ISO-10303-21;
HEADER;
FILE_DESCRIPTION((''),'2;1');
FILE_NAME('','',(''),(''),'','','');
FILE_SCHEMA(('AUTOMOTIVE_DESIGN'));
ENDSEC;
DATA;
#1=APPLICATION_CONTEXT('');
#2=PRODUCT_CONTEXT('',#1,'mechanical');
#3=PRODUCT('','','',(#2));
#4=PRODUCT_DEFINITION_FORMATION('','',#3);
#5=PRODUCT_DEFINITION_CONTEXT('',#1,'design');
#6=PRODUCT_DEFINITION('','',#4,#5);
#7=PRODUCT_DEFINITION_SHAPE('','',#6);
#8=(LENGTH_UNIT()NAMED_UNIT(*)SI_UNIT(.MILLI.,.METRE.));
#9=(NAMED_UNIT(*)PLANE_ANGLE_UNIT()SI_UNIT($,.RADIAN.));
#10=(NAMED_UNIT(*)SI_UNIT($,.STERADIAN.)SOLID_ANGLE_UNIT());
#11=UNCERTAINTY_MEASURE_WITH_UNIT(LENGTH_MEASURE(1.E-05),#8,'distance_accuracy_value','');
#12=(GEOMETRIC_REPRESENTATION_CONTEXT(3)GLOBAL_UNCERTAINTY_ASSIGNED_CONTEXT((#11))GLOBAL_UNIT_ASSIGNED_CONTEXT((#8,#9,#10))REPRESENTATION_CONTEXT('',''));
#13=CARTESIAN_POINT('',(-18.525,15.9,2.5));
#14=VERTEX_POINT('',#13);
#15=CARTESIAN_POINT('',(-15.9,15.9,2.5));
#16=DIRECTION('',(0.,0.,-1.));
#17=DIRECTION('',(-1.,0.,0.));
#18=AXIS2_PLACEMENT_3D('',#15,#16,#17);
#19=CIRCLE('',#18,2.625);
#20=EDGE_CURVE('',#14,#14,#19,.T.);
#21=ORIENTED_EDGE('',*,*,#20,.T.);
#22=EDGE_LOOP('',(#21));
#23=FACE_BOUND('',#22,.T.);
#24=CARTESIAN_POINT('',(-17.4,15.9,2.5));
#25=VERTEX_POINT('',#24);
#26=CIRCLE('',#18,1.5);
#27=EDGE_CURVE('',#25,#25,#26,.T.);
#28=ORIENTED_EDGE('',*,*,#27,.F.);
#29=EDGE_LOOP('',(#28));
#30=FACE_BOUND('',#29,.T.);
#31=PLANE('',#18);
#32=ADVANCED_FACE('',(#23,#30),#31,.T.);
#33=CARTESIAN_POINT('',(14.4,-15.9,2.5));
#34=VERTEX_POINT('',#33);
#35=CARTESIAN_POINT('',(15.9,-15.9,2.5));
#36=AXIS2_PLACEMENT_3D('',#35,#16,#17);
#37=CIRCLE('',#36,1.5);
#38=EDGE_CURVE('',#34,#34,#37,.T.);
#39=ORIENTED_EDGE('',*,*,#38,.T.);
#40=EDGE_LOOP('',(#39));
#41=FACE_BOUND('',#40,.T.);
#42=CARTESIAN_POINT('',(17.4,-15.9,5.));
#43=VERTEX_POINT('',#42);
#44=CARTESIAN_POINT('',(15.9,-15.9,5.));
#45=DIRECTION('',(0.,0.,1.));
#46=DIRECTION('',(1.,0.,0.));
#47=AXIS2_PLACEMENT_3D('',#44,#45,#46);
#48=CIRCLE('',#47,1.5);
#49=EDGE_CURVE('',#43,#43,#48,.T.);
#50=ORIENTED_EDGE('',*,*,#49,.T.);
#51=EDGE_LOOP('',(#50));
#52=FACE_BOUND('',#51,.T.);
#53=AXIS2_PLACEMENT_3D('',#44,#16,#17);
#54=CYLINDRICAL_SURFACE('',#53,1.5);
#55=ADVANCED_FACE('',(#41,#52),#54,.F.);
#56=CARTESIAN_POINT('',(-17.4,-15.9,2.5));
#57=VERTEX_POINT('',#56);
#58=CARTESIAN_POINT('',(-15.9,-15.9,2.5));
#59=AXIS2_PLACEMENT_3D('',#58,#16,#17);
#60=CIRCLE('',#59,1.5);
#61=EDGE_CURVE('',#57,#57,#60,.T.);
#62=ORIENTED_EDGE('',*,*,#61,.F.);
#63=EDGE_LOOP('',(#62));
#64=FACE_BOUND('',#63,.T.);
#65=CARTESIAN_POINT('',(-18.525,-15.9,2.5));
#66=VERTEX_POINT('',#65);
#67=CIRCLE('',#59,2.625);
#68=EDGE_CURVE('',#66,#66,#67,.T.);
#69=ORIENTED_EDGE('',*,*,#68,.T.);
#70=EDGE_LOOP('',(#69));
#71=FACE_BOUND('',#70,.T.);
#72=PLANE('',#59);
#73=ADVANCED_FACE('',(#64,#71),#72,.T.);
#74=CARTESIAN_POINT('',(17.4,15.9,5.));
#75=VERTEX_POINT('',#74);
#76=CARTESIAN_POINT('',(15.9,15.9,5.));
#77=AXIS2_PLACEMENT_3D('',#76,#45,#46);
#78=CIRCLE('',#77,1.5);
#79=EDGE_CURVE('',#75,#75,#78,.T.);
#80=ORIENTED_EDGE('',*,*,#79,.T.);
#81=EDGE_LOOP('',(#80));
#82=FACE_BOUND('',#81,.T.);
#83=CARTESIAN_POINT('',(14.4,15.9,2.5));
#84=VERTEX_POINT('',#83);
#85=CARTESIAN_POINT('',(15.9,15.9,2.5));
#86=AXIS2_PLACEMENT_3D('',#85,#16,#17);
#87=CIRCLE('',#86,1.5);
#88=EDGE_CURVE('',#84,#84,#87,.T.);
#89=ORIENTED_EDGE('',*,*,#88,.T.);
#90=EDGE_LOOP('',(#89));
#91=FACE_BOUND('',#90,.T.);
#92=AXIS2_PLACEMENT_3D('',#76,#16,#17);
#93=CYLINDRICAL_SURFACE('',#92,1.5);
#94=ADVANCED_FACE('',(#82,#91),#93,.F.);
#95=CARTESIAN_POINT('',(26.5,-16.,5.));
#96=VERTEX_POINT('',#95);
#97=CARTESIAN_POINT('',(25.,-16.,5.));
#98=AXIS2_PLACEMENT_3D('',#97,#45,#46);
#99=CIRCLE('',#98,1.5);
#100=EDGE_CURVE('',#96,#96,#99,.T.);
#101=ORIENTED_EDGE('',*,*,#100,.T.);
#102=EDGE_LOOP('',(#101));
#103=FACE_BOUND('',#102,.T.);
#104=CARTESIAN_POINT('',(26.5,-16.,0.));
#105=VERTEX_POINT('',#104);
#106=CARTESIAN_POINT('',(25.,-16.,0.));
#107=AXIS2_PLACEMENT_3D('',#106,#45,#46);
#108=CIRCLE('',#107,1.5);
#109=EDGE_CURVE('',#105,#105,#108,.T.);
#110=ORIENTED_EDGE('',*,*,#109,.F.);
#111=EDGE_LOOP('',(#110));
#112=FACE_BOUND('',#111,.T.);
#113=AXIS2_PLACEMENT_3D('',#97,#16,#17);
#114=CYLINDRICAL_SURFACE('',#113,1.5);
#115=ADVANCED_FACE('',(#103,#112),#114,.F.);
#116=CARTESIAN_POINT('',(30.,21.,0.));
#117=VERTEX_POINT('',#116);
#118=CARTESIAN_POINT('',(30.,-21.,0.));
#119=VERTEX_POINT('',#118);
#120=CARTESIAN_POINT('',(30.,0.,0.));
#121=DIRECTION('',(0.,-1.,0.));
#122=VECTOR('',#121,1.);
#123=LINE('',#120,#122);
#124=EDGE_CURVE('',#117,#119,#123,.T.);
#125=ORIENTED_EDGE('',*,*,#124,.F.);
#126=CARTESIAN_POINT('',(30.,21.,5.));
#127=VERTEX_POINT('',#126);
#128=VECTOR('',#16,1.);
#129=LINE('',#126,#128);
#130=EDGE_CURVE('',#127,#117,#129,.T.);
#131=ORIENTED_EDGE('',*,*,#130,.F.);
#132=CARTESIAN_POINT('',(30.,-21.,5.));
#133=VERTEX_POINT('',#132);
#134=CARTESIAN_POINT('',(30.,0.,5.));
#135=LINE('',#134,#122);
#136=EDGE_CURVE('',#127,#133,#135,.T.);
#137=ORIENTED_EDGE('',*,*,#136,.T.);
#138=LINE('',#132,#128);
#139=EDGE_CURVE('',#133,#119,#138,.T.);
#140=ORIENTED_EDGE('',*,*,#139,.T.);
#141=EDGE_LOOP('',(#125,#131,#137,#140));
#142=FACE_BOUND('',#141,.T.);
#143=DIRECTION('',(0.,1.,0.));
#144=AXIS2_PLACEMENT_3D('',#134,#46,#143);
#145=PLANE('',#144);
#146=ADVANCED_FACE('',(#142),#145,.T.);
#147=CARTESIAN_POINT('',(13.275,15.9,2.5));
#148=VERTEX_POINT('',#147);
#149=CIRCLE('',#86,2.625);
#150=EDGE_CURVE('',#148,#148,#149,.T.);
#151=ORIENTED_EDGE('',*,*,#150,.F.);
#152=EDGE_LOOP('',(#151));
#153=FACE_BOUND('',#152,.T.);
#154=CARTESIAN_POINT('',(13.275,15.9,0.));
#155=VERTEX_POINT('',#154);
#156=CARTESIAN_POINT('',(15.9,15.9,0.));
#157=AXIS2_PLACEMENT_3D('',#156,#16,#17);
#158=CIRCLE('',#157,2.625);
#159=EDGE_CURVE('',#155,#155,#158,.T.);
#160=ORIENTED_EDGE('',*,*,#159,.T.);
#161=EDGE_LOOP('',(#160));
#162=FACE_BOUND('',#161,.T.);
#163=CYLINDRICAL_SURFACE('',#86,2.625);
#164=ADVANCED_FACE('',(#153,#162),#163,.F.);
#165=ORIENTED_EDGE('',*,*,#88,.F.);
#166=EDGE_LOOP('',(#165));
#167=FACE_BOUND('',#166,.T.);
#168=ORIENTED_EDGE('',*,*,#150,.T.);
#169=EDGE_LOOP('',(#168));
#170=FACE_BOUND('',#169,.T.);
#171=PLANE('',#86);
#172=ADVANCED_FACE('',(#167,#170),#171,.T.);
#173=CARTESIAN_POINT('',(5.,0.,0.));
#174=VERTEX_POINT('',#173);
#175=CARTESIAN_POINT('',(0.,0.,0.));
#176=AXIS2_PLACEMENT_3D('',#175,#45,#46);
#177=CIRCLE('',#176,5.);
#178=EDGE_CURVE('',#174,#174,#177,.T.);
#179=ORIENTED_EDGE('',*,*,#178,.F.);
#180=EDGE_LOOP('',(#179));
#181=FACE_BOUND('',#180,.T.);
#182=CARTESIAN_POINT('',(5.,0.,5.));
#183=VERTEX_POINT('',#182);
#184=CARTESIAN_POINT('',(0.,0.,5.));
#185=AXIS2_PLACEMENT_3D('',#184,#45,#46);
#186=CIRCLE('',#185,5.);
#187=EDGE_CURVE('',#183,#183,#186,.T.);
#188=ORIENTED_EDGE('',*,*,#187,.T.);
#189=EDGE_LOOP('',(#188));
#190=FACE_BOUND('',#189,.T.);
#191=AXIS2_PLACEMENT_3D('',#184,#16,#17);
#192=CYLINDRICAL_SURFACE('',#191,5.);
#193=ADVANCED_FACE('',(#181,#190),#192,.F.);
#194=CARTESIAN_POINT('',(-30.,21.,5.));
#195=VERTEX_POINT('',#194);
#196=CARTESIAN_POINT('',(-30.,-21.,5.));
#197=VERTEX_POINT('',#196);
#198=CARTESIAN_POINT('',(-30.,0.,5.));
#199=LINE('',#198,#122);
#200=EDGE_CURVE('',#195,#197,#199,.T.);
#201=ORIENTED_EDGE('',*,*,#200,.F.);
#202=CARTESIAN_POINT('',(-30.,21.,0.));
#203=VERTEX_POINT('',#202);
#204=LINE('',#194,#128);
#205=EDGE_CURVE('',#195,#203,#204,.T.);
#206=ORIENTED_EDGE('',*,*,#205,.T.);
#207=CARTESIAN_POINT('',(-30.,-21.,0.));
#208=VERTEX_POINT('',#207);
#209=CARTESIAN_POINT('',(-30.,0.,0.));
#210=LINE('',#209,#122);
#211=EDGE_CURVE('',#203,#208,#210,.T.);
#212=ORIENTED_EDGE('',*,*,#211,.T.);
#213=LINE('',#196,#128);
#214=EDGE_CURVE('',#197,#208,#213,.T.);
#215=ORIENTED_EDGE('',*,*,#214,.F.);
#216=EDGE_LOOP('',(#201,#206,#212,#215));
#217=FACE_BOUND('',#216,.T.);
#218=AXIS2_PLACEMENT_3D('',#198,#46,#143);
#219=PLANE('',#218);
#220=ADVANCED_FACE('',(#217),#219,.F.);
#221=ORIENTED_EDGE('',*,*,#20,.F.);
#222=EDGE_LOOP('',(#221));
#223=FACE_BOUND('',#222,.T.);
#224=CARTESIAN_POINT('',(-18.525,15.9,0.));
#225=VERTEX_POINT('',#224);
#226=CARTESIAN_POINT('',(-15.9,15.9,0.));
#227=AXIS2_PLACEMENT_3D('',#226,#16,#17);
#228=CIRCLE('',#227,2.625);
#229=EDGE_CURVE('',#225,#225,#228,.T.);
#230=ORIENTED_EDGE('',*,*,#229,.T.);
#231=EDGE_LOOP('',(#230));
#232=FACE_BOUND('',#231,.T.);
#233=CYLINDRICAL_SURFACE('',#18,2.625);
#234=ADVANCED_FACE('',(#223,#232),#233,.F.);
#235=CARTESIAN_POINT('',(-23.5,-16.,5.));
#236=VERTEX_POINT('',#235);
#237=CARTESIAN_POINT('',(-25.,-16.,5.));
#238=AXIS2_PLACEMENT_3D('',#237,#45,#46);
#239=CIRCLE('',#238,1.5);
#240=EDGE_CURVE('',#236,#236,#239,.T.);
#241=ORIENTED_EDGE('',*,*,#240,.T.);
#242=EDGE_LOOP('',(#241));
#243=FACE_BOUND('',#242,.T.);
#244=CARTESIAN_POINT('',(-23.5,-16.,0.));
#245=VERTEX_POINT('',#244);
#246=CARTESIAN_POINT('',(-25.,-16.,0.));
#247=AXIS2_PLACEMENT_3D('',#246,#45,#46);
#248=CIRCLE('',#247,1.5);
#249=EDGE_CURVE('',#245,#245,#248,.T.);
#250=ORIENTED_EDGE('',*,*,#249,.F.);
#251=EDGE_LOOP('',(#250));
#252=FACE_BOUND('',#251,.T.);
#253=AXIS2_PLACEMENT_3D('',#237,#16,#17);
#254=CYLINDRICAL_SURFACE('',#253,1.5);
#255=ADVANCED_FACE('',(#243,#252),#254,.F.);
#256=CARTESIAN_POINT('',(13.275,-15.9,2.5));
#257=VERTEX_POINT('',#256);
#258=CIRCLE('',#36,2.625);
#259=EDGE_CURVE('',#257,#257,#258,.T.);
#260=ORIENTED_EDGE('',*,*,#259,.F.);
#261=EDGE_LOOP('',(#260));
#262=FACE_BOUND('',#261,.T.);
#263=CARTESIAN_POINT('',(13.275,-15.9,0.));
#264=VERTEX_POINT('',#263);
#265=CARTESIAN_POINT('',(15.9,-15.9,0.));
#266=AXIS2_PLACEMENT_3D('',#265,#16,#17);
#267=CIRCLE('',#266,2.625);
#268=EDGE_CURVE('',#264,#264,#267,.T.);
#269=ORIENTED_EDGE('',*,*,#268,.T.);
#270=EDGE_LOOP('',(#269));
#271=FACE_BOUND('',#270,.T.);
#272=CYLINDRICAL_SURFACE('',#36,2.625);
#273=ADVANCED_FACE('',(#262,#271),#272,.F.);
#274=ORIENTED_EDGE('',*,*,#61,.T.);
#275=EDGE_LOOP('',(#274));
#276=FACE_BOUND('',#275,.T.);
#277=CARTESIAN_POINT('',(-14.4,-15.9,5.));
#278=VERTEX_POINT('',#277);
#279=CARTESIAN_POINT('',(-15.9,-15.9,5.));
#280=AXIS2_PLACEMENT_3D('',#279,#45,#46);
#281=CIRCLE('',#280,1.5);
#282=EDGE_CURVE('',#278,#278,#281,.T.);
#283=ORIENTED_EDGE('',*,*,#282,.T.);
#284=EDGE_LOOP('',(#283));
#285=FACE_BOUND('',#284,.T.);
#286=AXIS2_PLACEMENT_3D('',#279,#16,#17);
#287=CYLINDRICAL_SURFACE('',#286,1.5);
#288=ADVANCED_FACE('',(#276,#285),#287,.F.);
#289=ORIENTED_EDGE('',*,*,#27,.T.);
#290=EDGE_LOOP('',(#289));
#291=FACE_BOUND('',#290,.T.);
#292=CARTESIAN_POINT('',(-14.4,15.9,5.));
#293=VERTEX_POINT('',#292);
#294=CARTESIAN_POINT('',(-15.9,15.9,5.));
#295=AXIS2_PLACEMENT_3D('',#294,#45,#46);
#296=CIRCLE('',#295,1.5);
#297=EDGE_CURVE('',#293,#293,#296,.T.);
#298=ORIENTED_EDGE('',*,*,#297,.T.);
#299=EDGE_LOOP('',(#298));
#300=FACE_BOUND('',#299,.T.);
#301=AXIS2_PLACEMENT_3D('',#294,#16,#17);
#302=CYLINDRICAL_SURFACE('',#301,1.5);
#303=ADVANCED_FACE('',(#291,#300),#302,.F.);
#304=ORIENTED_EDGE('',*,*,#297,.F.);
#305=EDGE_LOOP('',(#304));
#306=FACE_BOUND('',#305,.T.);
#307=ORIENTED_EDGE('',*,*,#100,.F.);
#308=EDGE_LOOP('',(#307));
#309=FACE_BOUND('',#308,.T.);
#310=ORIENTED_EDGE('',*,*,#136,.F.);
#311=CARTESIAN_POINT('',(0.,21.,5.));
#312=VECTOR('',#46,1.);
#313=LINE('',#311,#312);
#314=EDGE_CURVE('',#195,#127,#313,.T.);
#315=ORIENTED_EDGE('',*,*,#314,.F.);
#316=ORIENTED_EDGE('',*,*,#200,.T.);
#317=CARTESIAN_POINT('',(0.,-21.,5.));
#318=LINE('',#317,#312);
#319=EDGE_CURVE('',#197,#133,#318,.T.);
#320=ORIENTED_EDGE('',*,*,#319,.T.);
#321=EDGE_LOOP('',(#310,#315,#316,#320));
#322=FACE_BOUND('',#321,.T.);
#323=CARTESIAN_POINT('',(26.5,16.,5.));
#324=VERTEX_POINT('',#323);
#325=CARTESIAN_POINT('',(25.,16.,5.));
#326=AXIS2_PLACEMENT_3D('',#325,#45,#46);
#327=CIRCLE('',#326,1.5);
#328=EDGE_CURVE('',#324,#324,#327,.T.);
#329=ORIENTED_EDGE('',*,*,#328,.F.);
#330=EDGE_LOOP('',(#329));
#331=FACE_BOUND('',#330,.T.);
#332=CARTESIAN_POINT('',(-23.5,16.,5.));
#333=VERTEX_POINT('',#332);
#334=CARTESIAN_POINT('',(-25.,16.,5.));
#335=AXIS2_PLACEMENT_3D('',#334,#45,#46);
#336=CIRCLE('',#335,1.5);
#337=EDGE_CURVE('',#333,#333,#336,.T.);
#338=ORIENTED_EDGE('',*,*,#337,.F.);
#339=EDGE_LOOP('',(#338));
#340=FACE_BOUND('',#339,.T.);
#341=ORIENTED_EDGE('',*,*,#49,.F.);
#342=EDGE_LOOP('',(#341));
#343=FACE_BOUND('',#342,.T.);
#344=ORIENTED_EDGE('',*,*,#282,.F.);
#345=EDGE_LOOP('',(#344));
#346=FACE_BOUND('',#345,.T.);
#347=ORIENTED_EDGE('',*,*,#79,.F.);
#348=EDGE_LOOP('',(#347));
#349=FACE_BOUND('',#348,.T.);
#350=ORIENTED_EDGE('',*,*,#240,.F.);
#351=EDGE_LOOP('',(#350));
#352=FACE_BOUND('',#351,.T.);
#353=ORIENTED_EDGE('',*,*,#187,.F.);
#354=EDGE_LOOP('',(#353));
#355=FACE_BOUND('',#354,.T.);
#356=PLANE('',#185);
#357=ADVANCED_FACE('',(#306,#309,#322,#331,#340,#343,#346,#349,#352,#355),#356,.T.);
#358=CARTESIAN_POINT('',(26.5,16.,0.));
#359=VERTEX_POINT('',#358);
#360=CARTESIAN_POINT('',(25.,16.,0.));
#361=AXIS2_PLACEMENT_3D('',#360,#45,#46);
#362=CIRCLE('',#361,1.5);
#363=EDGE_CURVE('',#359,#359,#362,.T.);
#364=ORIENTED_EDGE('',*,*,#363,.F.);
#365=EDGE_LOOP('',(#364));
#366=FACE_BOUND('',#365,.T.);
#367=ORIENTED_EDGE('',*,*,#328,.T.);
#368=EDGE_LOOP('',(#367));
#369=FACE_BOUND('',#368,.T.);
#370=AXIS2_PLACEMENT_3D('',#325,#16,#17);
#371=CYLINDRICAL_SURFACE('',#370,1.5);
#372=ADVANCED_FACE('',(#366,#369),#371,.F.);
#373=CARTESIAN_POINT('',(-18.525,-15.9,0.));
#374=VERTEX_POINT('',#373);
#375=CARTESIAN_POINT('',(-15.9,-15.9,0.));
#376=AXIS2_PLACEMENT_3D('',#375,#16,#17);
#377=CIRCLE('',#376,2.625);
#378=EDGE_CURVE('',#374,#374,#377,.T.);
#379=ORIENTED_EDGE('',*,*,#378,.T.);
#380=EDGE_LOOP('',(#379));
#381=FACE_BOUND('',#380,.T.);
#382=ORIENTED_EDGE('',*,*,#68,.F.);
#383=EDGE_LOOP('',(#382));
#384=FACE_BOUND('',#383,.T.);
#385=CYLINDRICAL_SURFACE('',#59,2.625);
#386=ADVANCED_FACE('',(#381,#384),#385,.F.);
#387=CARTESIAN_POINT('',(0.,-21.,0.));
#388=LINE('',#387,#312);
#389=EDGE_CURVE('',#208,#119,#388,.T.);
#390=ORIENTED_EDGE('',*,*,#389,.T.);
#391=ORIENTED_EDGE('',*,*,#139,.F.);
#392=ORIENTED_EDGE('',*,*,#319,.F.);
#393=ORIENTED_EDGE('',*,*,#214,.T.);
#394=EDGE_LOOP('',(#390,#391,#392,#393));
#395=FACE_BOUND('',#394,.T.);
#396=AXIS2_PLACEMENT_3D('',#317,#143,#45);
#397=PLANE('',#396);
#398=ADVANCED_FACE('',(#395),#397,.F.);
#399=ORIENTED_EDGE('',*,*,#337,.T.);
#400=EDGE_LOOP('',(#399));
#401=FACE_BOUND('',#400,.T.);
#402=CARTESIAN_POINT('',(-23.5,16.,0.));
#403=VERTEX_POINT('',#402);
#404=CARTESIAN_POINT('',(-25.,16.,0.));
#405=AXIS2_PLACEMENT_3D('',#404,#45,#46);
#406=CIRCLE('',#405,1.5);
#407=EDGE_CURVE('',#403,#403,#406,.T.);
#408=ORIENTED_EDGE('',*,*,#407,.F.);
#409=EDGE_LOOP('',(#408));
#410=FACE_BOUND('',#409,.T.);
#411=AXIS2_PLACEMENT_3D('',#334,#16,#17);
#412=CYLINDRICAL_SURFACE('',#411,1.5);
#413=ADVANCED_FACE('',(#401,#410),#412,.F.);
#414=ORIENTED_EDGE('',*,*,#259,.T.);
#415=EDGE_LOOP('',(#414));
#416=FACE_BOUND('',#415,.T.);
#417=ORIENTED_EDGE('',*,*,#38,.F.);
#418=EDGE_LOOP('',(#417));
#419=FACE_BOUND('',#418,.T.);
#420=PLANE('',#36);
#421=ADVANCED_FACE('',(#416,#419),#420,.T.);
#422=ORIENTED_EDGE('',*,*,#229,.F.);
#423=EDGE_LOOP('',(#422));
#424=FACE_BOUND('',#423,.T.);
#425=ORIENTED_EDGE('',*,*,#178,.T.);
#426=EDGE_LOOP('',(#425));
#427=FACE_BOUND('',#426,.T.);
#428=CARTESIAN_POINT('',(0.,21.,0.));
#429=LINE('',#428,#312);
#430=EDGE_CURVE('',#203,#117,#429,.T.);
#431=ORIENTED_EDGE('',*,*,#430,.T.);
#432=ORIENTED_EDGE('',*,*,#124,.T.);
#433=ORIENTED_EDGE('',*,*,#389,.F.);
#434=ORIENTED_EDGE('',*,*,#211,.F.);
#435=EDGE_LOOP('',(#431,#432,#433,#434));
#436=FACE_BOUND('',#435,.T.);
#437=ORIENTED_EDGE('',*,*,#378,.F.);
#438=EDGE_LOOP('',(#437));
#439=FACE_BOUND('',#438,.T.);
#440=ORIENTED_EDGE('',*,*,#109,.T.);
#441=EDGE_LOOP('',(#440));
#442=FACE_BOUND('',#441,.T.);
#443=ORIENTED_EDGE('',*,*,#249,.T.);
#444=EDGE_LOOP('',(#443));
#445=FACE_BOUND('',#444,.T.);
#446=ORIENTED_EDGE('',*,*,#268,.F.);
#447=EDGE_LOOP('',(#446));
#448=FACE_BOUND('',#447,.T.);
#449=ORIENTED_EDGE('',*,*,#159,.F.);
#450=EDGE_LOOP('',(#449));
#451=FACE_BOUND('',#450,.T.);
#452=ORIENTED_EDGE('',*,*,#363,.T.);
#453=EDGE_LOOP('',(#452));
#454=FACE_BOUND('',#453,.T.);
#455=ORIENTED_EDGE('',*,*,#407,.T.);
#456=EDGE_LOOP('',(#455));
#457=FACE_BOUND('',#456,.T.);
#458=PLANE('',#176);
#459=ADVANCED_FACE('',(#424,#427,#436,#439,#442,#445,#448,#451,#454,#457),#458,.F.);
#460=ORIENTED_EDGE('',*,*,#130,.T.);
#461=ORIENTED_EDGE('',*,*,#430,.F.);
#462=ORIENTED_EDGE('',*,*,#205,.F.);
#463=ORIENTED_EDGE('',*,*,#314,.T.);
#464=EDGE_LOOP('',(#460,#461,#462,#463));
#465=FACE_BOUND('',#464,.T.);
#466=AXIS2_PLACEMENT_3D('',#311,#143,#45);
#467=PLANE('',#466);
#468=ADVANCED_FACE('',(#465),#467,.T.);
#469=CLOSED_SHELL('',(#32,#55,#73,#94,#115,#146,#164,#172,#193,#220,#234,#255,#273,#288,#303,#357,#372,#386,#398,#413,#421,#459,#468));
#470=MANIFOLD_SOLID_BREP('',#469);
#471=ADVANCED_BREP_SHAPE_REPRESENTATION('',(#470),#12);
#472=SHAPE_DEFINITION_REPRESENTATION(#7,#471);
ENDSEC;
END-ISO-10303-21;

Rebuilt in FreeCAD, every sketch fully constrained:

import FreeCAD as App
import Part
import Sketcher
from FreeCAD import Vector


def add_polygon(sketch, points):
    """Adds a closed chain of lines whose ends are joined by coincident constraints."""
    first, n = sketch.GeometryCount, len(points)
    for a, b in zip(points, points[1:] + points[:1]):
        sketch.addGeometry(Part.LineSegment(App.Vector(*a, 0), App.Vector(*b, 0)), False)
    for i in range(n):
        sketch.addConstraint(Sketcher.Constraint("Coincident", first + i, 2, first + (i + 1) % n, 1))

doc = App.newDocument("Part")
body = doc.addObject("PartDesign::Body", "Body")

sketch1 = body.newObject("Sketcher::SketchObject", "Sketch")
sketch1.AttachmentSupport = (doc.getObject("XY_Plane"), [""])
sketch1.MapMode = "FlatFace"
add_polygon(sketch1, [(-30, 21), (-30, -21), (30, -21), (30, 21)])
sketch1.addGeometry(Part.Circle(Vector(-25, -16, 0), Vector(0, 0, 1), 1.5), False)
sketch1.addGeometry(Part.Circle(Vector(-15.9, -15.9, 0), Vector(0, 0, 1), 1.5), False)
sketch1.addGeometry(Part.Circle(Vector(15.9, -15.9, 0), Vector(0, 0, 1), 1.5), False)
sketch1.addGeometry(Part.Circle(Vector(25, -16, 0), Vector(0, 0, 1), 1.5), False)
sketch1.addGeometry(Part.Circle(Vector(-25, 16, 0), Vector(0, 0, 1), 1.5), False)
sketch1.addGeometry(Part.Circle(Vector(-15.9, 15.9, 0), Vector(0, 0, 1), 1.5), False)
sketch1.addGeometry(Part.Circle(Vector(0, 0, 0), Vector(0, 0, 1), 5), False)
sketch1.addGeometry(Part.Circle(Vector(15.9, 15.9, 0), Vector(0, 0, 1), 1.5), False)
sketch1.addGeometry(Part.Circle(Vector(25, 16, 0), Vector(0, 0, 1), 1.5), False)
sketch1.addConstraint(Sketcher.Constraint("Vertical", 0))
sketch1.addConstraint(Sketcher.Constraint("Horizontal", 1))
sketch1.addConstraint(Sketcher.Constraint("Vertical", 2))
sketch1.addConstraint(Sketcher.Constraint("Horizontal", 3))
sketch1.addConstraint(Sketcher.Constraint("Coincident", 10, 3, -1, 1))
sketch1.addConstraint(Sketcher.Constraint("Equal", 4, 5))
sketch1.addConstraint(Sketcher.Constraint("Equal", 5, 6))
sketch1.addConstraint(Sketcher.Constraint("Equal", 6, 7))
sketch1.addConstraint(Sketcher.Constraint("Equal", 7, 8))
sketch1.addConstraint(Sketcher.Constraint("Equal", 8, 9))
sketch1.addConstraint(Sketcher.Constraint("Equal", 9, 11))
sketch1.addConstraint(Sketcher.Constraint("Equal", 11, 12))
sketch1.addConstraint(Sketcher.Constraint("Symmetric", 7, 3, 8, 3, -1, 1))
sketch1.addConstraint(Sketcher.Constraint("Symmetric", 6, 3, 9, 3, -1, 1))
sketch1.addConstraint(Sketcher.Constraint("Symmetric", 5, 3, 11, 3, -1, 1))
sketch1.addConstraint(Sketcher.Constraint("Symmetric", 4, 3, 12, 3, -1, 1))
sketch1.addConstraint(Sketcher.Constraint("Symmetric", 0, 2, 2, 2, -1, 1))
sketch1.addConstraint(Sketcher.Constraint("Symmetric", 5, 3, 6, 3, -2))
sketch1.addConstraint(Sketcher.Constraint("Symmetric", 4, 3, 7, 3, -2))
sketch1.addConstraint(Sketcher.Constraint("Diameter", 4, 3.0))
sketch1.addConstraint(Sketcher.Constraint("Diameter", 10, 10.0))
sketch1.addConstraint(Sketcher.Constraint("DistanceX", 1, 1, 1, 2, 60.0))
sketch1.addConstraint(Sketcher.Constraint("DistanceY", 0, 2, 0, 1, 42.0))
sketch1.addConstraint(Sketcher.Constraint("DistanceX", 4, 3, -1, 1, 25.0))
sketch1.addConstraint(Sketcher.Constraint("DistanceY", 4, 3, -1, 1, 16.0))
sketch1.addConstraint(Sketcher.Constraint("DistanceX", 5, 3, -1, 1, 15.9))
sketch1.addConstraint(Sketcher.Constraint("DistanceY", 5, 3, -1, 1, 15.9))
pad1 = body.newObject("PartDesign::Pad", "Pad")
pad1.Profile = sketch1
pad1.Length = 5

sketch2 = body.newObject("Sketcher::SketchObject", "Sketch001")
sketch2.AttachmentSupport = (doc.getObject("XY_Plane"), [""])
sketch2.MapMode = "FlatFace"
sketch2.addGeometry(Part.Circle(Vector(15.9, 15.9, 0), Vector(0, 0, 1), 2.6), False)
sketch2.addGeometry(Part.Circle(Vector(-15.9, 15.9, 0), Vector(0, 0, 1), 2.6), False)
sketch2.addGeometry(Part.Circle(Vector(-15.9, -15.9, 0), Vector(0, 0, 1), 2.6), False)
sketch2.addGeometry(Part.Circle(Vector(15.9, -15.9, 0), Vector(0, 0, 1), 2.6), False)
sketch2.addConstraint(Sketcher.Constraint("Equal", 0, 1))
sketch2.addConstraint(Sketcher.Constraint("Equal", 1, 2))
sketch2.addConstraint(Sketcher.Constraint("Equal", 2, 3))
sketch2.addConstraint(Sketcher.Constraint("Symmetric", 0, 3, 2, 3, -1, 1))
sketch2.addConstraint(Sketcher.Constraint("Symmetric", 1, 3, 3, 3, -1, 1))
sketch2.addConstraint(Sketcher.Constraint("Symmetric", 0, 3, 1, 3, -2))
sketch2.addConstraint(Sketcher.Constraint("Diameter", 0, 5.25))
sketch2.addConstraint(Sketcher.Constraint("DistanceX", -1, 1, 0, 3, 15.9))
sketch2.addConstraint(Sketcher.Constraint("DistanceY", -1, 1, 0, 3, 15.9))
pocket1 = body.newObject("PartDesign::Pocket", "Pocket")
pocket1.Profile = sketch2
pocket1.Length = 2.5
pocket1.Reversed = True

doc.recompute()
